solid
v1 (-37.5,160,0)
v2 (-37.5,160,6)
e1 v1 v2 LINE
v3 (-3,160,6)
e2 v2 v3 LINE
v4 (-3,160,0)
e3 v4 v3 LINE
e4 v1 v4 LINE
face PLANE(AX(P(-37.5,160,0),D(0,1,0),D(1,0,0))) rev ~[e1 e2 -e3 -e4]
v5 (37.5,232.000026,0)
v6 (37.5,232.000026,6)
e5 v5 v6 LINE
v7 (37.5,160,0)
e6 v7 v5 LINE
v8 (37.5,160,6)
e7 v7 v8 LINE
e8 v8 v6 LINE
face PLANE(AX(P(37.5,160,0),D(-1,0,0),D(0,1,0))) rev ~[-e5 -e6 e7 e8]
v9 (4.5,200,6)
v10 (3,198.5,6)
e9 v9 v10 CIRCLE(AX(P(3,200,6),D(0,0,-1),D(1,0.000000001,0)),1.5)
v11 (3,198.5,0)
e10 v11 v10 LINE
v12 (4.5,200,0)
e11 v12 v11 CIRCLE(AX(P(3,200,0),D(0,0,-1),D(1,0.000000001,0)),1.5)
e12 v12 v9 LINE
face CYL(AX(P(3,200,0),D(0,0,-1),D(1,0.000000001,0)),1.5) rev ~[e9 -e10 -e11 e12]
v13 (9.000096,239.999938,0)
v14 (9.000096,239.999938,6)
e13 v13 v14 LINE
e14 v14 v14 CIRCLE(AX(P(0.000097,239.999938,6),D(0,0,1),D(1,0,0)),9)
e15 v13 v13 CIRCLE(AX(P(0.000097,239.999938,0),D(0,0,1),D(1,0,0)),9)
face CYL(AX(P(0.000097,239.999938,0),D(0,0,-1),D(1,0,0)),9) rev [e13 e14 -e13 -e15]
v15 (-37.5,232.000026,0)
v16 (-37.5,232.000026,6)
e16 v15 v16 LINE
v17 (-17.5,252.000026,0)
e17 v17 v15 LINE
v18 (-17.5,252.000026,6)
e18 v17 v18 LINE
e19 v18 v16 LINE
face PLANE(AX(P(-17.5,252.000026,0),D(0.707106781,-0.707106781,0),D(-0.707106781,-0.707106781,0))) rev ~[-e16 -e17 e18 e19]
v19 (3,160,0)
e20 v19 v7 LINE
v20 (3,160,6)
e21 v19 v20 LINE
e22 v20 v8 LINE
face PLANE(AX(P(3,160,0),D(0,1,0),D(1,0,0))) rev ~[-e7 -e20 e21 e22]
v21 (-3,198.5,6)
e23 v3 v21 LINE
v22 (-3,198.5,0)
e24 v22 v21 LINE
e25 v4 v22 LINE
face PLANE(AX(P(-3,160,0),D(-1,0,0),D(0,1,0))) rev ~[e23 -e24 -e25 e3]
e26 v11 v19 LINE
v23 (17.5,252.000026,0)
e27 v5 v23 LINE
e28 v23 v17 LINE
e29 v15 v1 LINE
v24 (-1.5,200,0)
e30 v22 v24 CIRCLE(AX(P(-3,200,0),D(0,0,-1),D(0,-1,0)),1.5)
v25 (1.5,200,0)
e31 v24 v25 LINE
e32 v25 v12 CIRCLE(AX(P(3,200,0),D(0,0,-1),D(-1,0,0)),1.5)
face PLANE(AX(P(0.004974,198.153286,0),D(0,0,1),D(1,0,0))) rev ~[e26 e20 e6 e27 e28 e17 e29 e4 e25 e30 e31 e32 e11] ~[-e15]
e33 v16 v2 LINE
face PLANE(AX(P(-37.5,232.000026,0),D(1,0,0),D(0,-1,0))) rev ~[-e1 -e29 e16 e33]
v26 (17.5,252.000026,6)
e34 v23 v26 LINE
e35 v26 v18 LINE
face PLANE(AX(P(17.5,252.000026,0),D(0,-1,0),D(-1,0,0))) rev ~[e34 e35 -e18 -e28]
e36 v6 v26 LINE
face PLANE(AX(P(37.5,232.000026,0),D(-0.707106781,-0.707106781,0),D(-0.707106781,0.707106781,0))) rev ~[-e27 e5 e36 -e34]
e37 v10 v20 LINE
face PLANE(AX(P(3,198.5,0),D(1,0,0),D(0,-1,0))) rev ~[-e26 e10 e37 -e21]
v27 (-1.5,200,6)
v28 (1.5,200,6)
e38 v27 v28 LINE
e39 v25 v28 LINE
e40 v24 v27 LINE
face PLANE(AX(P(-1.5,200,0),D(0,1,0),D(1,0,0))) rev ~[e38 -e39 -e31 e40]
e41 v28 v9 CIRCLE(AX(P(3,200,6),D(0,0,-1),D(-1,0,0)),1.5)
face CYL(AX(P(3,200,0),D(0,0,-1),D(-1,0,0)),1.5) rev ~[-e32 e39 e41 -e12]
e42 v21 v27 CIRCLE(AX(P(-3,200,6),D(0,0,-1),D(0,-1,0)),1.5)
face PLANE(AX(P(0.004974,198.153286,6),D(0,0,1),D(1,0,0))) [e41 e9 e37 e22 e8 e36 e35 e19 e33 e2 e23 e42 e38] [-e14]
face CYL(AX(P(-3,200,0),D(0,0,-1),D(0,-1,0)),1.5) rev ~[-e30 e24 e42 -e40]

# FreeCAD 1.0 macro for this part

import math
import FreeCAD as App
import Part
import Sketcher
from FreeCAD import Vector

doc = App.newDocument("Part")
params = doc.addObject("Spreadsheet::Sheet", "Params")
for row, (alias, value) in enumerate([
    ("sketch1_diameter", "18 mm"),
    ("sketch1_radius", "1.5 mm"),
    ("sketch1_width", "35 mm"),
    ("sketch1_width2", "3 mm"),
    ("sketch1_width3", "34.5 mm"),
    ("pad1_length", "6 mm"),
], start=1):
    params.set(f"A{row}", alias)
    params.set(f"B{row}", "=" + value)
    params.setAlias(f"B{row}", alias)

body = doc.addObject("PartDesign::Body", "Body")

# Sketch on XY plane
sketch1 = body.newObject("Sketcher::SketchObject", "Sketch")
sketch1.AttachmentSupport = (doc.getObject("XY_Plane"), [""])
sketch1.MapMode = "FlatFace"
sketch1.addGeometry([
    Part.LineSegment(Vector(3, 160, 0), Vector(37.5, 160, 0)),  # 0
    Part.LineSegment(Vector(37.5, 160, 0), Vector(37.5, 232, 0)),  # 1
    Part.LineSegment(Vector(37.5, 232, 0), Vector(17.5, 252, 0)),  # 2
    Part.LineSegment(Vector(17.5, 252, 0), Vector(-17.5, 252, 0)),  # 3
    Part.LineSegment(Vector(-17.5, 252, 0), Vector(-37.5, 232, 0)),  # 4
    Part.LineSegment(Vector(-37.5, 232, 0), Vector(-37.5, 160, 0)),  # 5
    Part.LineSegment(Vector(-37.5, 160, 0), Vector(-3, 160, 0)),  # 6
    Part.LineSegment(Vector(-3, 160, 0), Vector(-3, 198.5, 0)),  # 7
    Part.ArcOfCircle(Part.Circle(Vector(-3, 200, 0), Vector(0, 0, 1), 1.5), math.radians(0), math.radians(270)),  # 8
    Part.LineSegment(Vector(-1.5, 200, 0), Vector(1.5, 200, 0)),  # 9
    Part.ArcOfCircle(Part.Circle(Vector(3, 200, 0), Vector(0, 0, 1), 1.5), math.radians(0), math.radians(180)),  # 10
    Part.ArcOfCircle(Part.Circle(Vector(3, 200, 0), Vector(0, 0, 1), 1.5), math.radians(-90), math.radians(0)),  # 11
    Part.LineSegment(Vector(3, 198.5, 0), Vector(3, 160, 0)),  # 12
    Part.Circle(Vector(0, 240, 0), Vector(0, 0, 1), 9),  # 13
], False)
sketch1.addConstraint([
    Sketcher.Constraint("Coincident", 0, 2, 1, 1),
    Sketcher.Constraint("Coincident", 1, 2, 2, 1),
    Sketcher.Constraint("Coincident", 2, 2, 3, 1),
    Sketcher.Constraint("Coincident", 3, 2, 4, 1),
    Sketcher.Constraint("Coincident", 4, 2, 5, 1),
    Sketcher.Constraint("Coincident", 5, 2, 6, 1),
    Sketcher.Constraint("Coincident", 6, 2, 7, 1),
    Sketcher.Constraint("Coincident", 7, 2, 8, 2),
    Sketcher.Constraint("Coincident", 8, 1, 9, 1),
    Sketcher.Constraint("Coincident", 9, 2, 10, 2),
    Sketcher.Constraint("Tangent", 10, 1, 11, 2),
    Sketcher.Constraint("Coincident", 11, 1, 12, 1),
    Sketcher.Constraint("Coincident", 12, 2, 0, 1),
    Sketcher.Constraint("Horizontal", 0),
    Sketcher.Constraint("Vertical", 1),
    Sketcher.Constraint("Horizontal", 3),
    Sketcher.Constraint("Vertical", 5),
    Sketcher.Constraint("Horizontal", 6),
    Sketcher.Constraint("Vertical", 7),
    Sketcher.Constraint("Horizontal", 9),
    Sketcher.Constraint("Vertical", 12),
    Sketcher.Constraint("Equal", 8, 10),
    Sketcher.Constraint("Equal", 10, 11),
    Sketcher.Constraint("Symmetric", 8, 3, 10, 3, -2),
    Sketcher.Constraint("Symmetric", 1, 2, 4, 2, -2),
    Sketcher.Constraint("Symmetric", 6, 2, 12, 2, -2),
    Sketcher.Constraint("Perpendicular", 2, 4),
    Sketcher.Constraint("Horizontal", 11, 3, 8, 1),
    Sketcher.Constraint("Horizontal", 9, 2, 10, 1),
    Sketcher.Constraint("Vertical", 8, 3, 6, 2),
    Sketcher.Constraint("Equal", 2, 4),
    Sketcher.Constraint("Diameter", 13, 18.0),
    Sketcher.Constraint("Radius", 8, 1.5),
    Sketcher.Constraint("DistanceX", 3, 2, 3, 1, 35.0),
    Sketcher.Constraint("DistanceX", 9, 1, 9, 2, 3.0),
    Sketcher.Constraint("DistanceX", 0, 1, 0, 2, 34.5),
    Sketcher.Constraint("DistanceY", 7, 1, 7, 2, 38.5),
    Sketcher.Constraint("DistanceY", -1, 1, 8, 3, 200.0),
    Sketcher.Constraint("DistanceY", 1, 1, 1, 2, 72.000026),
    Sketcher.Constraint("DistanceY", -1, 1, 13, 3, 239.999938),
    Sketcher.Constraint("DistanceX", 13, 3, 10, 3, 2.999903),
])
sketch1.setExpression("Constraints[31]", "Params.sketch1_diameter")
sketch1.setExpression("Constraints[32]", "Params.sketch1_radius")
sketch1.setExpression("Constraints[33]", "Params.sketch1_width")
sketch1.setExpression("Constraints[34]", "Params.sketch1_width2")
sketch1.setExpression("Constraints[35]", "Params.sketch1_width3")
pad1 = body.newObject("PartDesign::Pad", "Pad")
pad1.Profile = sketch1
pad1.setExpression("Length", "Params.pad1_length")

doc.recompute()
